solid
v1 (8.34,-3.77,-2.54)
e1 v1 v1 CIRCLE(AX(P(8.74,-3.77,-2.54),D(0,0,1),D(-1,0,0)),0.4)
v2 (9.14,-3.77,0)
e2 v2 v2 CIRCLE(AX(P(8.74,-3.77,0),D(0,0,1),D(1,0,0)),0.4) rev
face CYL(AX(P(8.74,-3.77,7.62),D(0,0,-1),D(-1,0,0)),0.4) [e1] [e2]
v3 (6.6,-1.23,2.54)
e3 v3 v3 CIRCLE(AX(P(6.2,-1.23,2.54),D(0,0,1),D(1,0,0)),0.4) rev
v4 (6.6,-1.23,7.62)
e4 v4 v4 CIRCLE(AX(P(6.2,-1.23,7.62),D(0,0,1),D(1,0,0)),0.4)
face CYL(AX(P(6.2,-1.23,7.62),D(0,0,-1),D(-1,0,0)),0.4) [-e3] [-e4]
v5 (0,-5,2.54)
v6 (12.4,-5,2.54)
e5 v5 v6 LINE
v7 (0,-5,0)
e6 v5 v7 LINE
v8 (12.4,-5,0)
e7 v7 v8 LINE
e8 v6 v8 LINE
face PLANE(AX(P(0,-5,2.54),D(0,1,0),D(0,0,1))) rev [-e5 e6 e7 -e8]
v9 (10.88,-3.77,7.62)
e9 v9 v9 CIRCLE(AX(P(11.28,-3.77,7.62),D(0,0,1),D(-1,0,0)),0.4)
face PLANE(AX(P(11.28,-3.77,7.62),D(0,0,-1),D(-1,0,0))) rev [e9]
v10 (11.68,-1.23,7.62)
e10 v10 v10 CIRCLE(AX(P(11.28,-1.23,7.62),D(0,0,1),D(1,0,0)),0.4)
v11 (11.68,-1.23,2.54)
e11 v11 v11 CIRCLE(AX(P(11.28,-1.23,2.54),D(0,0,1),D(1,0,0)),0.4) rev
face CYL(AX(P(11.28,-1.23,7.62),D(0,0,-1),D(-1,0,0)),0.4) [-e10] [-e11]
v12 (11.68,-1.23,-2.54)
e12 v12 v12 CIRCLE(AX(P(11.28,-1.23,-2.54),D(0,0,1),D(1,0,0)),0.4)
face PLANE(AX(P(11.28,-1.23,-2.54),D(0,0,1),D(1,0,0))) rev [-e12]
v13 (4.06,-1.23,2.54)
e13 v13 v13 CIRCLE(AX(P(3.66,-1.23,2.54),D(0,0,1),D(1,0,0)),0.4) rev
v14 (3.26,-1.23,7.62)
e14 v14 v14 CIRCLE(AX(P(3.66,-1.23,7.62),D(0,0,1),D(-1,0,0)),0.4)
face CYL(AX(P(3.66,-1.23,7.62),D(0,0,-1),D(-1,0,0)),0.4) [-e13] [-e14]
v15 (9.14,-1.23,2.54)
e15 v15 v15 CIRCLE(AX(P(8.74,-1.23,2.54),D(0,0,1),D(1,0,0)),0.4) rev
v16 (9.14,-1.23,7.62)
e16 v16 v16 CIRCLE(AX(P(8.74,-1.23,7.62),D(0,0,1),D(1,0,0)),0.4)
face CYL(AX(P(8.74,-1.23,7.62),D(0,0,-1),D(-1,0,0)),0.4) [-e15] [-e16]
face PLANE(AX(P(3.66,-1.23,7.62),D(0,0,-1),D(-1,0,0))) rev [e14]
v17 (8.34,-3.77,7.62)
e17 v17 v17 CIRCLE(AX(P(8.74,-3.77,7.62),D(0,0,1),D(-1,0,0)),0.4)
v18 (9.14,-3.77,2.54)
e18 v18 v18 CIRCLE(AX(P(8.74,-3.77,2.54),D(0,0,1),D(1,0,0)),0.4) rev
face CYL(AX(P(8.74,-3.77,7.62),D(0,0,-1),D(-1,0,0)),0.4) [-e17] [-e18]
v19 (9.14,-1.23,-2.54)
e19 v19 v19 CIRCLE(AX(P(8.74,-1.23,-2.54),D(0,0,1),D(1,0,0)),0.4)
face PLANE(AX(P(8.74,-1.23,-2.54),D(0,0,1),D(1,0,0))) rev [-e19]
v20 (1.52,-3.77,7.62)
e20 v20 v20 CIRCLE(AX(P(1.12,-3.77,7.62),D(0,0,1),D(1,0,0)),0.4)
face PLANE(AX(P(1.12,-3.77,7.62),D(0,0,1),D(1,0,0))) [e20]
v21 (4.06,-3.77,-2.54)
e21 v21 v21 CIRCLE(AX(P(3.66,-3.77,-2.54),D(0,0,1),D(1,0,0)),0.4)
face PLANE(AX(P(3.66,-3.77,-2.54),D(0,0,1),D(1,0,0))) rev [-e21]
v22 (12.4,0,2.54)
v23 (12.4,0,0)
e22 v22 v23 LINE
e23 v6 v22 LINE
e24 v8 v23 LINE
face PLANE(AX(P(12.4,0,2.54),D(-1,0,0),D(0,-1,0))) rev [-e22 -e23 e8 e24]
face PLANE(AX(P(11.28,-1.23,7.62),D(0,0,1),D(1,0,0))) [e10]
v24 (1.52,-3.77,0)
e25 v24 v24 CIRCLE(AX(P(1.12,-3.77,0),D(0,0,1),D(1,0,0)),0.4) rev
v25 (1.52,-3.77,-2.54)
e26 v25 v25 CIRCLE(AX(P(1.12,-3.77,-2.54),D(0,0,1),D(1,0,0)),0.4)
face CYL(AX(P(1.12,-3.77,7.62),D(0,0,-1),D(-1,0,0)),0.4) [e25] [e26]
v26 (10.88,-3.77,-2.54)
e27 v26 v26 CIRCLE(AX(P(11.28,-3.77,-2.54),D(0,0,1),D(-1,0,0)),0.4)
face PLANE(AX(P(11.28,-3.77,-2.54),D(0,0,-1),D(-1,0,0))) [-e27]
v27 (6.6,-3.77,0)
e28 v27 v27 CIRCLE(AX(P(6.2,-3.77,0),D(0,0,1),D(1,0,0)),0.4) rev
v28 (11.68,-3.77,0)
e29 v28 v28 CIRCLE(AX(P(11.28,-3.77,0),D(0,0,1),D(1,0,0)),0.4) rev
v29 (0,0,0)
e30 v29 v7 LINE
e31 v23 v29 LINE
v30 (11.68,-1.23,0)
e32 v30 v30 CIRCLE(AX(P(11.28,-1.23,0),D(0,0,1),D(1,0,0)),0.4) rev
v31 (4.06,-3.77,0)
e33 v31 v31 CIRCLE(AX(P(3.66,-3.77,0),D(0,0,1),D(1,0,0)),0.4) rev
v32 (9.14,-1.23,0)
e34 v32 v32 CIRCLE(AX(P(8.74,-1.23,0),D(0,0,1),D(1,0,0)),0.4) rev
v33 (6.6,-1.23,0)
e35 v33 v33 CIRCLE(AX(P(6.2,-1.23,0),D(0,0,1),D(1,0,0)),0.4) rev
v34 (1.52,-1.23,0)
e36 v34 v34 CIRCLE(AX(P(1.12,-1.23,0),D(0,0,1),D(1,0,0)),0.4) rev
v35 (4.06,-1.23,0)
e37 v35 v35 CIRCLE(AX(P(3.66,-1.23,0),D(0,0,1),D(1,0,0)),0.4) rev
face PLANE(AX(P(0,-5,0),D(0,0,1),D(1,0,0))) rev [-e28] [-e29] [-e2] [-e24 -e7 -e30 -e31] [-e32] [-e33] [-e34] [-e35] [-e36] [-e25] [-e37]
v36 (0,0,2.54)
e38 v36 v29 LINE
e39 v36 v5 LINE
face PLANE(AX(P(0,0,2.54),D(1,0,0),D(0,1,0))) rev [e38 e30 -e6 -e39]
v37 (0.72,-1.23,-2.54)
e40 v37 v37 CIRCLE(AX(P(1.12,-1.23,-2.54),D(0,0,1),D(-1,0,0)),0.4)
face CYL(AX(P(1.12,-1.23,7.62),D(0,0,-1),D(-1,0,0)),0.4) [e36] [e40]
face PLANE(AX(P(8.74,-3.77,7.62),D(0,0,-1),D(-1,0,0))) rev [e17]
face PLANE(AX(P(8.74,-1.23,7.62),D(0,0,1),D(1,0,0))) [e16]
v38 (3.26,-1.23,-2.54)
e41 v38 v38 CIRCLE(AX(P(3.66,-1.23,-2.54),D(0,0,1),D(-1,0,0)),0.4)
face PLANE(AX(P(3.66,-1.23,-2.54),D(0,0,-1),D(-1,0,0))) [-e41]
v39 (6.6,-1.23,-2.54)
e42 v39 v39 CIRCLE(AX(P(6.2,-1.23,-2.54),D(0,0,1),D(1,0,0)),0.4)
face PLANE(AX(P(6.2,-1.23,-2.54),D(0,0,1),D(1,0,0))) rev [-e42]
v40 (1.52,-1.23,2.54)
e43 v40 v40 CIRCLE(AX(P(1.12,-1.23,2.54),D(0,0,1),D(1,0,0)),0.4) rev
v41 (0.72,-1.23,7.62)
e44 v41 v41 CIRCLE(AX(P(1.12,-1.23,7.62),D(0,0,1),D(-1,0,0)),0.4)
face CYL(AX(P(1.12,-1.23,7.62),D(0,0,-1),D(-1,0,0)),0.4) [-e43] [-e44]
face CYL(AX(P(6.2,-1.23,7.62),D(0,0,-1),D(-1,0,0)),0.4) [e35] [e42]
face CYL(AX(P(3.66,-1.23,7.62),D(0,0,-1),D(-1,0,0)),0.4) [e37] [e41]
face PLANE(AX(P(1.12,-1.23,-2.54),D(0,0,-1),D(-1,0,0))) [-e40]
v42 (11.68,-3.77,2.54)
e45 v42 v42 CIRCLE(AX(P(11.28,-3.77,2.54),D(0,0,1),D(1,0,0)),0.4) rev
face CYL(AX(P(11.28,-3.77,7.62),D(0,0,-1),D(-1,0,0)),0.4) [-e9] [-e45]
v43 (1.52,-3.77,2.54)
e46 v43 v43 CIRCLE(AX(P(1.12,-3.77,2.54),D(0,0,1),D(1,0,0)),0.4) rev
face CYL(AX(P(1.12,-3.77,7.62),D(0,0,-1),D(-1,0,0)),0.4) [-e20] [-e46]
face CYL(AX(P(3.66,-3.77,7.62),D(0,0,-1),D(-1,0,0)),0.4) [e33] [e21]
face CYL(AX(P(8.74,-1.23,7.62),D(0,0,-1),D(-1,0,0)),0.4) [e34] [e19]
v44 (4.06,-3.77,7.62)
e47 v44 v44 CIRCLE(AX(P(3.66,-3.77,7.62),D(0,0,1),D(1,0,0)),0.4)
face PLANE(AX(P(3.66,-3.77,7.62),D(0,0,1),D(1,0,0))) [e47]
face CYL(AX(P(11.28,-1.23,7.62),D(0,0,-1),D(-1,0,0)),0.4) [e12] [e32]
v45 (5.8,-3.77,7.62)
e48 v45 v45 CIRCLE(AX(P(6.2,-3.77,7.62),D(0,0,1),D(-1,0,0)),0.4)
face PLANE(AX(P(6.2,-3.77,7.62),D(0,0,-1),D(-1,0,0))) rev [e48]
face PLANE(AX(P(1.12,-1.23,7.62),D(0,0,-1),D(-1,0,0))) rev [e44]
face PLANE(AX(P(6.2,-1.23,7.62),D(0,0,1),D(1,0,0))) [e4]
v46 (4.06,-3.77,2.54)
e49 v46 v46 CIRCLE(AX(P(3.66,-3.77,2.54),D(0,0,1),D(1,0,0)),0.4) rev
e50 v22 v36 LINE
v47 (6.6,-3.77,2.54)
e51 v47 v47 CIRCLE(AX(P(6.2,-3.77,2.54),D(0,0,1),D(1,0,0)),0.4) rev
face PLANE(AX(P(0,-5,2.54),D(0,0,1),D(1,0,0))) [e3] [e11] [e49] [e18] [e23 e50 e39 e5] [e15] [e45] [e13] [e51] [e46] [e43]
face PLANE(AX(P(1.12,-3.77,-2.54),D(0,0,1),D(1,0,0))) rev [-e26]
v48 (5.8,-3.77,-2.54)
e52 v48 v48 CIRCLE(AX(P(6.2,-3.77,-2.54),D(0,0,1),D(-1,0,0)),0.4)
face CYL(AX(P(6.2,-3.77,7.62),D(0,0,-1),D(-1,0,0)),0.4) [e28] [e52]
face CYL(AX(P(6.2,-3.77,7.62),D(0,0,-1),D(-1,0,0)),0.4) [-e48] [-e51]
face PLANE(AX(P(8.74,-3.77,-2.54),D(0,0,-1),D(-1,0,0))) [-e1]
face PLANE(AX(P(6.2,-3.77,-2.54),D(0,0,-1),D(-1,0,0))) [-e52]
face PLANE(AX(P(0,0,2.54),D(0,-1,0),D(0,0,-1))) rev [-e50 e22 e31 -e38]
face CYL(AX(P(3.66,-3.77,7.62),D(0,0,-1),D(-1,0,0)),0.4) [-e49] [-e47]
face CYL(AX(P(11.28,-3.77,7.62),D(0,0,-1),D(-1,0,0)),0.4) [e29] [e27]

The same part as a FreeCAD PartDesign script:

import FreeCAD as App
import Part
import Sketcher

V = App.Vector

doc = App.newDocument("Part")
body = doc.addObject("PartDesign::Body", "Body")

# Sketch on XY plane
sketch1 = body.newObject("Sketcher::SketchObject", "Sketch")
sketch1.AttachmentSupport = (doc.getObject("XY_Plane"), [""])
sketch1.MapMode = "FlatFace"
sketch1.addGeometry([
    Part.LineSegment(V(0, 0, 0), V(0, -5, 0)),
    Part.LineSegment(V(0, -5, 0), V(12, -5, 0)),
    Part.LineSegment(V(12, -5, 0), V(12, 0, 0)),
    Part.LineSegment(V(12, 0, 0), V(0, 0, 0)),
], False)
sketch1.addConstraint([
    Sketcher.Constraint("Coincident", 0, 2, 1, 1),
    Sketcher.Constraint("Coincident", 1, 2, 2, 1),
    Sketcher.Constraint("Coincident", 2, 2, 3, 1),
    Sketcher.Constraint("Coincident", 3, 2, 0, 1),
    Sketcher.Constraint("Vertical", 0),
    Sketcher.Constraint("Horizontal", 1),
    Sketcher.Constraint("Vertical", 2),
    Sketcher.Constraint("Horizontal", 3),
    Sketcher.Constraint("Coincident", 3, 2, -1, 1),
    Sketcher.Constraint("DistanceY", 0, 2, 0, 1, 5.0),
    Sketcher.Constraint("DistanceX", 1, 1, 1, 2, 12.4),
])
pad1 = body.newObject("PartDesign::Pad", "Pad")
pad1.Profile = sketch1
pad1.Length = 2.54

# Sketch on XY plane
sketch2 = body.newObject("Sketcher::SketchObject", "Sketch001")
sketch2.AttachmentSupport = (doc.getObject("XY_Plane"), [""])
sketch2.MapMode = "FlatFace"
sketch2.AttachmentOffset = App.Placement(V(0, 0, 2.54), App.Rotation())
sketch2.addGeometry([
    Part.Circle(V(6.2, -1.23, 0), V(0, 0, 1), 0.4),  # 0
    Part.Circle(V(8.74, -1.23, 0), V(0, 0, 1), 0.4),  # 1
    Part.Circle(V(11.28, -1.23, 0), V(0, 0, 1), 0.4),  # 2
    Part.Circle(V(1.12, -1.23, 0), V(0, 0, 1), 0.4),  # 3
    Part.Circle(V(3.66, -1.23, 0), V(0, 0, 1), 0.4),  # 4
    Part.Circle(V(11.28, -3.77, 0), V(0, 0, 1), 0.4),  # 5
    Part.Circle(V(8.74, -3.77, 0), V(0, 0, 1), 0.4),  # 6
    Part.Circle(V(6.2, -3.77, 0), V(0, 0, 1), 0.4),  # 7
    Part.Circle(V(3.66, -3.77, 0), V(0, 0, 1), 0.4),  # 8
    Part.Circle(V(1.12, -3.77, 0), V(0, 0, 1), 0.4),  # 9
], False)
sketch2.addConstraint([
    Sketcher.Constraint("Equal", 0, 1),
    Sketcher.Constraint("Equal", 1, 2),
    Sketcher.Constraint("Equal", 2, 3),
    Sketcher.Constraint("Equal", 3, 4),
    Sketcher.Constraint("Equal", 4, 5),
    Sketcher.Constraint("Equal", 5, 6),
    Sketcher.Constraint("Equal", 6, 7),
    Sketcher.Constraint("Equal", 7, 8),
    Sketcher.Constraint("Equal", 8, 9),
    Sketcher.Constraint("Horizontal", 0, 3, 1, 3),
    Sketcher.Constraint("Horizontal", 1, 3, 2, 3),
    Sketcher.Constraint("Horizontal", 2, 3, 3, 3),
    Sketcher.Constraint("Horizontal", 3, 3, 4, 3),
    Sketcher.Constraint("Horizontal", 5, 3, 6, 3),
    Sketcher.Constraint("Horizontal", 6, 3, 7, 3),
    Sketcher.Constraint("Horizontal", 7, 3, 8, 3),
    Sketcher.Constraint("Horizontal", 8, 3, 9, 3),
    Sketcher.Constraint("Vertical", 2, 3, 5, 3),
    Sketcher.Constraint("Vertical", 1, 3, 6, 3),
    Sketcher.Constraint("Vertical", 0, 3, 7, 3),
    Sketcher.Constraint("Vertical", 4, 3, 8, 3),
    Sketcher.Constraint("Vertical", 3, 3, 9, 3),
    Sketcher.Constraint("Diameter", 0, 0.8),
    Sketcher.Constraint("DistanceX", -1, 1, 0, 3, 6.2),
    Sketcher.Constraint("DistanceY", 0, 3, -1, 1, 1.23),
    Sketcher.Constraint("DistanceX", -1, 1, 1, 3, 8.74),
    Sketcher.Constraint("DistanceX", -1, 1, 2, 3, 11.28),
    Sketcher.Constraint("DistanceX", -1, 1, 3, 3, 1.12),
    Sketcher.Constraint("DistanceX", -1, 1, 4, 3, 3.66),
    Sketcher.Constraint("DistanceY", 5, 3, -1, 1, 3.77),
])
pad2 = body.newObject("PartDesign::Pad", "Pad001")
pad2.Profile = sketch2
pad2.Length = 10.16
pad2.Midplane = True

doc.recompute()
